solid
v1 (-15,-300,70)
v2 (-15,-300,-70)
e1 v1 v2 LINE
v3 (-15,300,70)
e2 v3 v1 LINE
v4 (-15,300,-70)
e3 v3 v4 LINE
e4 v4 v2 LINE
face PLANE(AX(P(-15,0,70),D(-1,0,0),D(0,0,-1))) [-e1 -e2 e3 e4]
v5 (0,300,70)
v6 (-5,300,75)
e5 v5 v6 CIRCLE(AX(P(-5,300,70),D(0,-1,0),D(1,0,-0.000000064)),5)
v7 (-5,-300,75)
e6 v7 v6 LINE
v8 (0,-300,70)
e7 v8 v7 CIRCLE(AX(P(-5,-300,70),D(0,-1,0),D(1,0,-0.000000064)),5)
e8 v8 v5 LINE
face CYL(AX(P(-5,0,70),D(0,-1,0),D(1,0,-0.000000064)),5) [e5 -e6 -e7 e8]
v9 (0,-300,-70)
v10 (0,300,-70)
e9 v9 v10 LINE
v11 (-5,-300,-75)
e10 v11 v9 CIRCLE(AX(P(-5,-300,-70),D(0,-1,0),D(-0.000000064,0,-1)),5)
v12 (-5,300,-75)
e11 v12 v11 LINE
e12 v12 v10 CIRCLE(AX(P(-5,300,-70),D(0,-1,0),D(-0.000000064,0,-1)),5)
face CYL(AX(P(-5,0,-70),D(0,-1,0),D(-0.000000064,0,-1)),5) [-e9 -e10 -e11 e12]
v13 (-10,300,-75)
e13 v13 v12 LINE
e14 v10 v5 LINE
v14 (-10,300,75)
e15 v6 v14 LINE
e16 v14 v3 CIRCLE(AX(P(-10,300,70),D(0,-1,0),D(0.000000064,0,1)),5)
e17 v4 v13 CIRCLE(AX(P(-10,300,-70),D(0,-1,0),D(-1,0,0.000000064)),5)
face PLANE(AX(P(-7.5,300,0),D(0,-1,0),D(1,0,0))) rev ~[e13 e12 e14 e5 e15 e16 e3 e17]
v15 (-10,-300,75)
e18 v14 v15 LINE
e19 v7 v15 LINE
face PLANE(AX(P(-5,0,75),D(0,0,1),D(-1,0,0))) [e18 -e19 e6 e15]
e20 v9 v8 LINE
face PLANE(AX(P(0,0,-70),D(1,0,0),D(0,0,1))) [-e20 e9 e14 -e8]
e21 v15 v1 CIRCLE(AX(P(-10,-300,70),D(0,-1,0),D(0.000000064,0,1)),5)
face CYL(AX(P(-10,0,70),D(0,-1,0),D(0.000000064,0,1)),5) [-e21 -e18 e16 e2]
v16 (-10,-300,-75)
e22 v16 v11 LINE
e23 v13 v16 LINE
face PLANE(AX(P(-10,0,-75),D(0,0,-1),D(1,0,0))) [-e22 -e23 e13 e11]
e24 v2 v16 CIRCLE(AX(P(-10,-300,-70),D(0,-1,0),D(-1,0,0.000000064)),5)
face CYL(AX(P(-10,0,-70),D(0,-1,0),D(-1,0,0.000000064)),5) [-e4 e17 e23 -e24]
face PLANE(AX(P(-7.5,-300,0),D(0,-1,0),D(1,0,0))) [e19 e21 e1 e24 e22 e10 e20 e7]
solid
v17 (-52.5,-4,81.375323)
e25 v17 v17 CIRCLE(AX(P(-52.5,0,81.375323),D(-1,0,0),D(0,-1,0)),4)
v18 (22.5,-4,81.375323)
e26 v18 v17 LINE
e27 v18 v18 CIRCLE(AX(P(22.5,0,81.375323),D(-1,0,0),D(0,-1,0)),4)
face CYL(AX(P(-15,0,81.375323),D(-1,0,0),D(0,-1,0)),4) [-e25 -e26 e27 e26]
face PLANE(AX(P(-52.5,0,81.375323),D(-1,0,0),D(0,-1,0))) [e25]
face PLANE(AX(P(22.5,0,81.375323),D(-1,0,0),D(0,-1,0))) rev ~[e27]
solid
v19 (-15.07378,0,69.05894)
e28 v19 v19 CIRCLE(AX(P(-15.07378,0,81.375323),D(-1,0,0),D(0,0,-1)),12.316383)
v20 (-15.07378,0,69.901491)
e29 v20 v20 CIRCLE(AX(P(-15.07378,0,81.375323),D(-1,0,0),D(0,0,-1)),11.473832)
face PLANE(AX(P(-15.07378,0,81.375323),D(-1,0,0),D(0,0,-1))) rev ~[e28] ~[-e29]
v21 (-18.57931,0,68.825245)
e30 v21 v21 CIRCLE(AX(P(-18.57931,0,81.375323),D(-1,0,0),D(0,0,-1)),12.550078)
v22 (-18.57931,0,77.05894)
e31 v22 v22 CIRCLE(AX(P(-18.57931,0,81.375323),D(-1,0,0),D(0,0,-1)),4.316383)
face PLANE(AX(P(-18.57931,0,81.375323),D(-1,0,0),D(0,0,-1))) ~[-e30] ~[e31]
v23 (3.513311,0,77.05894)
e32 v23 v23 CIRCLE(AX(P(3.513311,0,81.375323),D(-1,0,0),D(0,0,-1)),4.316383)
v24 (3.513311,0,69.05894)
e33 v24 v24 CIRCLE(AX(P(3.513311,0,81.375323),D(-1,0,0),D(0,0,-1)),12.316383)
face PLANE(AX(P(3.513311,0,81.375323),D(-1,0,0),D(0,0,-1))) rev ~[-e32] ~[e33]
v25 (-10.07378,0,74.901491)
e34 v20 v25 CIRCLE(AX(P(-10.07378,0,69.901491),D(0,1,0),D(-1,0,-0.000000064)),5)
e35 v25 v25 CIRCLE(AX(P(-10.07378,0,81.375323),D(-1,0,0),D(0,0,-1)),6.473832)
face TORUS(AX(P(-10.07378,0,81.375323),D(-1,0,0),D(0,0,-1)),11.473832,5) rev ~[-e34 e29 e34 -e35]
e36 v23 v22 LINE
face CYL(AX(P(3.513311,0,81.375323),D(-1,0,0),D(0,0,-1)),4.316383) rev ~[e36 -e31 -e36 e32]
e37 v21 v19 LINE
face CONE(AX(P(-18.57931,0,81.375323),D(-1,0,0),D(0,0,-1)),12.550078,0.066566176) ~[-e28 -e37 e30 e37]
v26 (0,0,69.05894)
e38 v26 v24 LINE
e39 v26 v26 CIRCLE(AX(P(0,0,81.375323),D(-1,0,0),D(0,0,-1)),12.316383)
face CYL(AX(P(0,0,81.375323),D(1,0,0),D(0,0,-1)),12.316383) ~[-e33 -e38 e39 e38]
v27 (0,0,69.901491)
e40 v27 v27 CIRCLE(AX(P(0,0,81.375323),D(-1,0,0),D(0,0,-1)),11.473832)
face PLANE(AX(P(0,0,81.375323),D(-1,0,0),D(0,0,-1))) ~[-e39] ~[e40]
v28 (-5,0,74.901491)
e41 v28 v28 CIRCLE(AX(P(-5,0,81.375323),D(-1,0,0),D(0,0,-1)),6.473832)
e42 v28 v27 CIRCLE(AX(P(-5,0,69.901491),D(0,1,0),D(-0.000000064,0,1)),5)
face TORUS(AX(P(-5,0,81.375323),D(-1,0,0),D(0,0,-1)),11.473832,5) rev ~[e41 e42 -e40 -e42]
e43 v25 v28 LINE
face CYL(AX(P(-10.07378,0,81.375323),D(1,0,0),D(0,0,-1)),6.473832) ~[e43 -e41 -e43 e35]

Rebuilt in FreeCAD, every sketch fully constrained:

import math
import FreeCAD as App
import Part
import Sketcher

V = App.Vector
Q = App.Units.Quantity

doc = App.newDocument("Part")
body = doc.addObject("PartDesign::Body", "Body")

sketch1 = doc.addObject("Sketcher::SketchObject", "Sketch")
body.addObject(sketch1)
sketch1.AttachmentSupport = (doc.XZ_Plane, [""])
sketch1.MapMode = "FlatFace"
sketch1.addGeometry(Part.LineSegment(V(-5, 75, 0), V(-10, 75, 0)), False)
sketch1.addGeometry(Part.ArcOfCircle(Part.Circle(V(-10, 70, 0), V(0, 0, 1), 5), math.radians(90), math.radians(180)), False)
sketch1.addGeometry(Part.LineSegment(V(-15, 70, 0), V(-15, -70, 0)), False)
sketch1.addGeometry(Part.ArcOfCircle(Part.Circle(V(-10, -70, 0), V(0, 0, 1), 5), math.radians(180), math.radians(270)), False)
sketch1.addGeometry(Part.LineSegment(V(-10, -75, 0), V(-5, -75, 0)), False)
sketch1.addGeometry(Part.ArcOfCircle(Part.Circle(V(-5, -70, 0), V(0, 0, 1), 5), math.radians(-90), math.radians(0)), False)
sketch1.addGeometry(Part.LineSegment(V(0, -70, 0), V(0, 70, 0)), False)
sketch1.addGeometry(Part.ArcOfCircle(Part.Circle(V(-5, 70, 0), V(0, 0, 1), 5), math.radians(0), math.radians(90)), False)
sketch1.addConstraint(Sketcher.Constraint("Tangent", 0, 2, 1, 1))
sketch1.addConstraint(Sketcher.Constraint("Tangent", 1, 2, 2, 1))
sketch1.addConstraint(Sketcher.Constraint("Tangent", 2, 2, 3, 1))
sketch1.addConstraint(Sketcher.Constraint("Tangent", 3, 2, 4, 1))
sketch1.addConstraint(Sketcher.Constraint("Tangent", 4, 2, 5, 1))
sketch1.addConstraint(Sketcher.Constraint("Tangent", 5, 2, 6, 1))
sketch1.addConstraint(Sketcher.Constraint("Tangent", 6, 2, 7, 1))
sketch1.addConstraint(Sketcher.Constraint("Tangent", 7, 2, 0, 1))
sketch1.addConstraint(Sketcher.Constraint("Horizontal", 0))
sketch1.addConstraint(Sketcher.Constraint("Vertical", 2))
sketch1.addConstraint(Sketcher.Constraint("Horizontal", 4))
sketch1.addConstraint(Sketcher.Constraint("Vertical", 6))
sketch1.addConstraint(Sketcher.Constraint("Equal", 1, 3))
sketch1.addConstraint(Sketcher.Constraint("Equal", 3, 5))
sketch1.addConstraint(Sketcher.Constraint("Equal", 5, 7))
sketch1.addConstraint(Sketcher.Constraint("Symmetric", 5, 2, 6, 2, -1, 1))
sketch1.addConstraint(Sketcher.Constraint("Radius", 1, Q("5 mm")))
sketch1.addConstraint(Sketcher.Constraint("DistanceX", 0, 2, 0, 1, Q("5 mm")))
sketch1.addConstraint(Sketcher.Constraint("DistanceY", 2, 2, 2, 1, Q("140 mm")))
pad1 = doc.addObject("PartDesign::Pad", "Pad")
body.addObject(pad1)
pad1.Profile = sketch1
pad1.Length = 600
pad1.Midplane = True
body2 = doc.addObject("PartDesign::Body", "Body001")

sketch2 = doc.addObject("Sketcher::SketchObject", "Sketch001")
body2.addObject(sketch2)
sketch2.AttachmentSupport = (doc.getObject("YZ_Plane001"), [""])
sketch2.MapMode = "FlatFace"
sketch2.AttachmentOffset = App.Placement(V(0, 0, -15), App.Rotation())
sketch2.addGeometry(Part.Circle(V(0, 81.4, 0), V(0, 0, 1), 4), False)
sketch2.addConstraint(Sketcher.Constraint("PointOnObject", 0, 3, -2))
sketch2.addConstraint(Sketcher.Constraint("Diameter", 0, Q("8 mm")))
sketch2.addConstraint(Sketcher.Constraint("DistanceY", -1, 1, 0, 3, Q("81.375323 mm")))
pad2 = doc.addObject("PartDesign::Pad", "Pad001")
body2.addObject(pad2)
pad2.Profile = sketch2
pad2.Length = 75
pad2.Midplane = True
body3 = doc.addObject("PartDesign::Body", "Body002")

sketch3 = doc.addObject("Sketcher::SketchObject", "Sketch002")
body3.addObject(sketch3)
sketch3.AttachmentSupport = (doc.getObject("XZ_Plane002"), [""])
sketch3.MapMode = "FlatFace"
sketch3.addGeometry(Part.LineSegment(V(-18.6, 77.1, 0), V(-18.6, 68.8, 0)), False)
sketch3.addGeometry(Part.LineSegment(V(-18.6, 68.8, 0), V(-15.1, 69.1, 0)), False)
sketch3.addGeometry(Part.LineSegment(V(-15.1, 69.1, 0), V(-15.1, 69.9, 0)), False)
sketch3.addGeometry(Part.ArcOfCircle(Part.Circle(V(-10.1, 69.9, 0), V(0, 0, 1), 5), math.radians(90), math.radians(180)), False)
sketch3.addGeometry(Part.LineSegment(V(-10.1, 74.9, 0), V(-5, 74.9, 0)), False)
sketch3.addGeometry(Part.ArcOfCircle(Part.Circle(V(-5, 69.9, 0), V(0, 0, 1), 5), math.radians(0), math.radians(90)), False)
sketch3.addGeometry(Part.LineSegment(V(0, 69.9, 0), V(0, 69.1, 0)), False)
sketch3.addGeometry(Part.LineSegment(V(0, 69.1, 0), V(3.5, 69.1, 0)), False)
sketch3.addGeometry(Part.LineSegment(V(3.5, 69.1, 0), V(3.5, 77.1, 0)), False)
sketch3.addGeometry(Part.LineSegment(V(3.5, 77.1, 0), V(-18.6, 77.1, 0)), False)
sketch3.addGeometry(Part.LineSegment(V(3.5, 81.4, 0), V(-18.6, 81.4, 0)), True)
sketch3.addConstraint(Sketcher.Constraint("Coincident", 0, 2, 1, 1))
sketch3.addConstraint(Sketcher.Constraint("Coincident", 1, 2, 2, 1))
sketch3.addConstraint(Sketcher.Constraint("Tangent", 2, 2, 3, 2))
sketch3.addConstraint(Sketcher.Constraint("Tangent", 3, 1, 4, 1))
sketch3.addConstraint(Sketcher.Constraint("Tangent", 4, 2, 5, 2))
sketch3.addConstraint(Sketcher.Constraint("Tangent", 5, 1, 6, 1))
sketch3.addConstraint(Sketcher.Constraint("Coincident", 6, 2, 7, 1))
sketch3.addConstraint(Sketcher.Constraint("Coincident", 7, 2, 8, 1))
sketch3.addConstraint(Sketcher.Constraint("Coincident", 8, 2, 9, 1))
sketch3.addConstraint(Sketcher.Constraint("Coincident", 9, 2, 0, 1))
sketch3.addConstraint(Sketcher.Constraint("Vertical", 0))
sketch3.addConstraint(Sketcher.Constraint("Vertical", 2))
sketch3.addConstraint(Sketcher.Constraint("Horizontal", 4))
sketch3.addConstraint(Sketcher.Constraint("Vertical", 6))
sketch3.addConstraint(Sketcher.Constraint("Horizontal", 7))
sketch3.addConstraint(Sketcher.Constraint("Vertical", 8))
sketch3.addConstraint(Sketcher.Constraint("Horizontal", 9))
sketch3.addConstraint(Sketcher.Constraint("Horizontal", 10))
sketch3.addConstraint(Sketcher.Constraint("Equal", 3, 5))
sketch3.addConstraint(Sketcher.Constraint("PointOnObject", 5, 1, -2))
sketch3.addConstraint(Sketcher.Constraint("Horizontal", 1, 2, 6, 2))
sketch3.addConstraint(Sketcher.Constraint("Vertical", 8, 2, 10, 1))
sketch3.addConstraint(Sketcher.Constraint("Vertical", 9, 2, 10, 2))
sketch3.addConstraint(Sketcher.Constraint("Radius", 3, Q("5 mm")))
sketch3.addConstraint(Sketcher.Constraint("DistanceY", 8, 1, 8, 2, Q("8 mm")))
sketch3.addConstraint(Sketcher.Constraint("DistanceX", 4, 1, 4, 2, Q("5.07378 mm")))
sketch3.addConstraint(Sketcher.Constraint("DistanceX", 7, 1, 7, 2, Q("3.513311 mm")))
sketch3.addConstraint(Sketcher.Constraint("DistanceX", 9, 2, 9, 1, Q("22.092621 mm")))
sketch3.addConstraint(Sketcher.Constraint("DistanceY", 2, 1, 2, 2, Q("0.842551 mm")))
sketch3.addConstraint(Sketcher.Constraint("Distance", 1, Q("3.513311 mm")))
sketch3.addConstraint(Sketcher.Constraint("DistanceY", -1, 1, 3, 3, Q("69.901491 mm")))
sketch3.addConstraint(Sketcher.Constraint("DistanceY", -1, 1, 10, 1, Q("81.375323 mm")))
revolution = doc.addObject("PartDesign::Revolution", "Revolution")
body3.addObject(revolution)
revolution.Profile = sketch3
revolution.ReferenceAxis = (sketch3, ["Axis0"])
revolution.Angle = 360

doc.recompute()
